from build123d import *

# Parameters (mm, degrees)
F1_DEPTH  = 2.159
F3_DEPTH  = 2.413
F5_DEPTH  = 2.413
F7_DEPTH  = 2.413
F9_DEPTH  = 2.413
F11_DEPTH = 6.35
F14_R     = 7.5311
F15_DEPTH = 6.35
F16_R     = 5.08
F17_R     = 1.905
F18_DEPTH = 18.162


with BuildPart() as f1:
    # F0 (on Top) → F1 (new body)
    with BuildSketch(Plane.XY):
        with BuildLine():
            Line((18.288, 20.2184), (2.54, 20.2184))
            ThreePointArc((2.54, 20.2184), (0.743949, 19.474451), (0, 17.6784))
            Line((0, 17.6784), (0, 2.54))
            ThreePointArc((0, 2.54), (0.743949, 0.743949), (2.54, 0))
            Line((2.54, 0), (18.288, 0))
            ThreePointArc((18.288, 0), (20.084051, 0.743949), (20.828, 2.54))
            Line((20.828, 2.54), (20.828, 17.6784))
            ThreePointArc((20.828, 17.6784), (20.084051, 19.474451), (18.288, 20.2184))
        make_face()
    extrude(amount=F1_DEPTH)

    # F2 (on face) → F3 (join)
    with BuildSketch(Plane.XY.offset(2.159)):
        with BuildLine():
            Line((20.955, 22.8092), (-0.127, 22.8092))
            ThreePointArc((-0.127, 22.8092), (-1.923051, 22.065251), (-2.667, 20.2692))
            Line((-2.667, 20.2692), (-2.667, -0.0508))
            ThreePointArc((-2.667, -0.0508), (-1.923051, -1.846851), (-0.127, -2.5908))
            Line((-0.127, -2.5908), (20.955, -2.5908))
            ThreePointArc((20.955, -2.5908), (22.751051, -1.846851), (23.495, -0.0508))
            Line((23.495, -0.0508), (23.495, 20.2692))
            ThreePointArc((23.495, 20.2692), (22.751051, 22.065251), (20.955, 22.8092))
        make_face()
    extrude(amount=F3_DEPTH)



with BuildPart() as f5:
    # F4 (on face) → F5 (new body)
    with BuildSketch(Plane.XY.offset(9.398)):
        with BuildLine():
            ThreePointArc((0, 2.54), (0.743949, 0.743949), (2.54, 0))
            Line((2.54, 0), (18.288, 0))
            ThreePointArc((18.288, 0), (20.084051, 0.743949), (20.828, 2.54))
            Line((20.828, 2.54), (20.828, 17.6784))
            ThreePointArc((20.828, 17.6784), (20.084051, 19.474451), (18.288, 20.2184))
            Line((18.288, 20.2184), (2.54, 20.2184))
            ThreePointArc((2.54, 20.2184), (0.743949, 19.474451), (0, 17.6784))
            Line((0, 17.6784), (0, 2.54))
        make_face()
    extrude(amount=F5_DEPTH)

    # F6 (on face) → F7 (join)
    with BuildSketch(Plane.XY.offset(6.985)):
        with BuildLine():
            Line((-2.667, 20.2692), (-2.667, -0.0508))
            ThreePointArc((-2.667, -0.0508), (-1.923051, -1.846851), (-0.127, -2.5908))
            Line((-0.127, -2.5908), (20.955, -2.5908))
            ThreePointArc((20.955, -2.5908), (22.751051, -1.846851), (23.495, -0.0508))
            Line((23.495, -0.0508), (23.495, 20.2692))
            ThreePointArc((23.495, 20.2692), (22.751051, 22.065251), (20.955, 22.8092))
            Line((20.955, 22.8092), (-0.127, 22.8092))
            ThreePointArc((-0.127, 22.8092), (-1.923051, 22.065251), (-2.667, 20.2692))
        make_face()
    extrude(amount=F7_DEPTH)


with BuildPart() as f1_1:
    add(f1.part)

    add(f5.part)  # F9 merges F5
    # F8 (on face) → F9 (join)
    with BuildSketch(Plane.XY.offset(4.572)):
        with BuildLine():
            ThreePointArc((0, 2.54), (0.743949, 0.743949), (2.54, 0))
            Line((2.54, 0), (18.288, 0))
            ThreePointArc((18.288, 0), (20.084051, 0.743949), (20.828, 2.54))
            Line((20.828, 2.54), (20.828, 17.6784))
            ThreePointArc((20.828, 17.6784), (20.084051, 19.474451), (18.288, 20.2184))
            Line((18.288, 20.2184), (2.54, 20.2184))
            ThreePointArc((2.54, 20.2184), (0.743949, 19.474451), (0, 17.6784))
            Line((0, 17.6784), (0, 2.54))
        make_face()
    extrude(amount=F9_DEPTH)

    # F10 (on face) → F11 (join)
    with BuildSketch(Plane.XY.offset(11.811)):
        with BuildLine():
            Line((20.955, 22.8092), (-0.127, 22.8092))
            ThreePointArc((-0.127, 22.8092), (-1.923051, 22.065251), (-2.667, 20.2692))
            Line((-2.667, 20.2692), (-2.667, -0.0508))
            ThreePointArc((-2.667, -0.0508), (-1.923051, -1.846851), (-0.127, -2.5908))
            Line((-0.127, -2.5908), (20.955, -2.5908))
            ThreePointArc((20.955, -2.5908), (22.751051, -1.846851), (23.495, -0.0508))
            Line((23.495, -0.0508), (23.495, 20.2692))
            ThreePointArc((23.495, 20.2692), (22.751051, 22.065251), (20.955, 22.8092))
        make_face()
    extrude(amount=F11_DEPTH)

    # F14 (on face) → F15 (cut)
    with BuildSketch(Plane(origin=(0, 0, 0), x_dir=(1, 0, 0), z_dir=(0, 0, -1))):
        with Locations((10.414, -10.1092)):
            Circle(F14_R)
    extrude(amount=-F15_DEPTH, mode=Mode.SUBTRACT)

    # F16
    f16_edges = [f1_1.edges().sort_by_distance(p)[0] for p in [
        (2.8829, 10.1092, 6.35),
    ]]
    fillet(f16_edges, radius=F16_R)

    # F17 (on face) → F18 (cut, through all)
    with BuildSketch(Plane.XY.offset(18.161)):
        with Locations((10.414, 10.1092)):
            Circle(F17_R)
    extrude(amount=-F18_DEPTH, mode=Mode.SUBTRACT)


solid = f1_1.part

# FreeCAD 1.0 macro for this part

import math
import FreeCAD as App
import Part
import Sketcher
from FreeCAD import Vector
Q = App.Units.Quantity


def edges_at(feature, points):
    """Names of the edges that pass closest to the given points."""
    edges = feature.Shape.Edges
    near = lambda p: min(range(len(edges)), key=lambda i: edges[i].distToShape(Part.Vertex(*p))[0])
    return sorted({f"Edge{near(p) + 1}" for p in points})

doc = App.newDocument("Part")
params = doc.addObject("Spreadsheet::Sheet", "Params")
for row, (alias, value) in enumerate([
    ("sketch1_radius", "0.1 in"),
    ("sketch1_width", "0.62 in"),
    ("sketch1_height", "0.596 in"),
    ("pad1_length", "0.085 in"),
    ("sketch2_radius", "0.1 in"),
    ("sketch2_height", "0.8 in"),
    ("sketch2_width", "0.83 in"),
    ("pad2_length", "0.095 in"),
    ("sketch3_radius", "0.1 in"),
    ("sketch3_width", "0.62 in"),
    ("sketch3_height", "0.596 in"),
    ("pad3_length", "0.095 in"),
    ("sketch4_radius", "0.1 in"),
    ("sketch4_height", "0.8 in"),
    ("sketch4_width", "0.83 in"),
    ("pad4_length", "0.095 in"),
    ("sketch5_radius", "0.1 in"),
    ("sketch5_width", "0.62 in"),
    ("sketch5_height", "0.596 in"),
    ("pad5_length", "0.095 in"),
    ("sketch6_radius", "0.1 in"),
    ("sketch6_height", "0.8 in"),
    ("sketch6_width", "0.83 in"),
    ("pad6_length", "0.25 in"),
    ("sketch7_diameter", "0.593 in"),
    ("pocket1_length", "0.25 in"),
    ("fillet_radius", "0.2 in"),
    ("sketch8_diameter", "0.15 in"),
], start=1):
    params.set(f"A{row}", alias)
    params.set(f"B{row}", "=" + value)
    params.setAlias(f"B{row}", alias)

body = doc.addObject("PartDesign::Body", "Body")

sketch1 = body.newObject("Sketcher::SketchObject", "Sketch")
sketch1.AttachmentSupport = (doc.getObject("XY_Plane"), [""])
sketch1.MapMode = "FlatFace"
sketch1.addGeometry(Part.LineSegment(Vector(18.288, 20.2184, 0), Vector(2.54, 20.2184, 0)), False)
sketch1.addGeometry(Part.ArcOfCircle(Part.Circle(Vector(2.540001, 17.678399, 0), Vector(0, 0, 1), 2.540001), math.radians(90.000017), math.radians(179.999983)), False)
sketch1.addGeometry(Part.LineSegment(Vector(0, 17.6784, 0), Vector(0, 2.54, 0)), False)
sketch1.addGeometry(Part.ArcOfCircle(Part.Circle(Vector(2.540001, 2.540001, 0), Vector(0, 0, 1), 2.540001), math.radians(-179.999983), math.radians(-90.000017)), False)
sketch1.addGeometry(Part.LineSegment(Vector(2.54, 0, 0), Vector(18.288, 0, 0)), False)
sketch1.addGeometry(Part.ArcOfCircle(Part.Circle(Vector(18.287999, 2.540001, 0), Vector(0, 0, 1), 2.540001), math.radians(-89.999983), math.radians(-0.000017)), False)
sketch1.addGeometry(Part.LineSegment(Vector(20.828, 2.54, 0), Vector(20.828, 17.6784, 0)), False)
sketch1.addGeometry(Part.ArcOfCircle(Part.Circle(Vector(18.287999, 17.678399, 0), Vector(0, 0, 1), 2.540001), math.radians(0.000017), math.radians(89.999983)), False)
sketch1.addConstraint(Sketcher.Constraint("Tangent", 0, 2, 1, 1))
sketch1.addConstraint(Sketcher.Constraint("Tangent", 1, 2, 2, 1))
sketch1.addConstraint(Sketcher.Constraint("Tangent", 2, 2, 3, 1))
sketch1.addConstraint(Sketcher.Constraint("Tangent", 3, 2, 4, 1))
sketch1.addConstraint(Sketcher.Constraint("Tangent", 4, 2, 5, 1))
sketch1.addConstraint(Sketcher.Constraint("Tangent", 5, 2, 6, 1))
sketch1.addConstraint(Sketcher.Constraint("Tangent", 6, 2, 7, 1))
sketch1.addConstraint(Sketcher.Constraint("Tangent", 7, 2, 0, 1))
sketch1.addConstraint(Sketcher.Constraint("Horizontal", 0))
sketch1.addConstraint(Sketcher.Constraint("Vertical", 2))
sketch1.addConstraint(Sketcher.Constraint("Horizontal", 4))
sketch1.addConstraint(Sketcher.Constraint("Vertical", 6))
sketch1.addConstraint(Sketcher.Constraint("Equal", 1, 3))
sketch1.addConstraint(Sketcher.Constraint("Equal", 3, 5))
sketch1.addConstraint(Sketcher.Constraint("Equal", 5, 7))
sketch1.addConstraint(Sketcher.Constraint("PointOnObject", 1, 2, -2))
sketch1.addConstraint(Sketcher.Constraint("PointOnObject", 3, 2, -1))
sketch1.addConstraint(Sketcher.Constraint("Radius", 1, Q("0.1 in")))
sketch1.addConstraint(Sketcher.Constraint("DistanceX", 0, 2, 0, 1, Q("0.62 in")))
sketch1.addConstraint(Sketcher.Constraint("DistanceY", 2, 2, 2, 1, Q("0.596 in")))
sketch1.setExpression("Constraints[17]", "Params.sketch1_radius")
sketch1.setExpression("Constraints[18]", "Params.sketch1_width")
sketch1.setExpression("Constraints[19]", "Params.sketch1_height")
pad1 = body.newObject("PartDesign::Pad", "Pad")
pad1.Profile = sketch1
pad1.setExpression("Length", "Params.pad1_length")

sketch2 = body.newObject("Sketcher::SketchObject", "Sketch001")
sketch2.AttachmentSupport = (doc.getObject("XY_Plane"), [""])
sketch2.MapMode = "FlatFace"
sketch2.AttachmentOffset = App.Placement(Vector(0, 0, 0.085 * 25.4), App.Rotation())
sketch2.addGeometry(Part.LineSegment(Vector(20.955, 22.8092, 0), Vector(-0.127, 22.8092, 0)), False)
sketch2.addGeometry(Part.ArcOfCircle(Part.Circle(Vector(-0.126999, 20.269199, 0), Vector(0, 0, 1), 2.540001), math.radians(90.000017), math.radians(179.999983)), False)
sketch2.addGeometry(Part.LineSegment(Vector(-2.667, 20.2692, 0), Vector(-2.667, -0.0508, 0)), False)
sketch2.addGeometry(Part.ArcOfCircle(Part.Circle(Vector(-0.126999, -0.050799, 0), Vector(0, 0, 1), 2.540001), math.radians(-179.999983), math.radians(-90.000017)), False)
sketch2.addGeometry(Part.LineSegment(Vector(-0.127, -2.5908, 0), Vector(20.955, -2.5908, 0)), False)
sketch2.addGeometry(Part.ArcOfCircle(Part.Circle(Vector(20.954999, -0.050799, 0), Vector(0, 0, 1), 2.540001), math.radians(-89.999983), math.radians(-0.000017)), False)
sketch2.addGeometry(Part.LineSegment(Vector(23.495, -0.0508, 0), Vector(23.495, 20.2692, 0)), False)
sketch2.addGeometry(Part.ArcOfCircle(Part.Circle(Vector(20.954999, 20.269199, 0), Vector(0, 0, 1), 2.540001), math.radians(0.000017), math.radians(89.999983)), False)
sketch2.addConstraint(Sketcher.Constraint("Tangent", 0, 2, 1, 1))
sketch2.addConstraint(Sketcher.Constraint("Tangent", 1, 2, 2, 1))
sketch2.addConstraint(Sketcher.Constraint("Tangent", 2, 2, 3, 1))
sketch2.addConstraint(Sketcher.Constraint("Tangent", 3, 2, 4, 1))
sketch2.addConstraint(Sketcher.Constraint("Tangent", 4, 2, 5, 1))
sketch2.addConstraint(Sketcher.Constraint("Tangent", 5, 2, 6, 1))
sketch2.addConstraint(Sketcher.Constraint("Tangent", 6, 2, 7, 1))
sketch2.addConstraint(Sketcher.Constraint("Tangent", 7, 2, 0, 1))
sketch2.addConstraint(Sketcher.Constraint("Horizontal", 0))
sketch2.addConstraint(Sketcher.Constraint("Vertical", 2))
sketch2.addConstraint(Sketcher.Constraint("Horizontal", 4))
sketch2.addConstraint(Sketcher.Constraint("Vertical", 6))
sketch2.addConstraint(Sketcher.Constraint("Equal", 1, 3))
sketch2.addConstraint(Sketcher.Constraint("Equal", 3, 5))
sketch2.addConstraint(Sketcher.Constraint("Equal", 5, 7))
sketch2.addConstraint(Sketcher.Constraint("Radius", 1, Q("0.1 in")))
sketch2.addConstraint(Sketcher.Constraint("DistanceY", 2, 2, 2, 1, Q("0.8 in")))
sketch2.addConstraint(Sketcher.Constraint("DistanceX", 0, 2, 0, 1, Q("0.83 in")))
sketch2.addConstraint(Sketcher.Constraint("DistanceX", 1, 3, -1, 1, Q("0.005 in")))
sketch2.addConstraint(Sketcher.Constraint("DistanceY", -1, 1, 1, 3, Q("0.798 in")))
sketch2.setExpression("Constraints[15]", "Params.sketch2_radius")
sketch2.setExpression("Constraints[16]", "Params.sketch2_height")
sketch2.setExpression("Constraints[17]", "Params.sketch2_width")
pad2 = body.newObject("PartDesign::Pad", "Pad001")
pad2.Profile = sketch2
pad2.setExpression("Length", "Params.pad2_length")
body2 = doc.addObject("PartDesign::Body", "Body001")

sketch3 = body2.newObject("Sketcher::SketchObject", "Sketch002")
sketch3.AttachmentSupport = (doc.getObject("XY_Plane001"), [""])
sketch3.MapMode = "FlatFace"
sketch3.AttachmentOffset = App.Placement(Vector(0, 0, 0.37 * 25.4), App.Rotation())
sketch3.addGeometry(Part.ArcOfCircle(Part.Circle(Vector(2.540001, 2.540001, 0), Vector(0, 0, 1), 2.540001), math.radians(-179.999983), math.radians(-90.000017)), False)
sketch3.addGeometry(Part.LineSegment(Vector(2.54, 0, 0), Vector(18.288, 0, 0)), False)
sketch3.addGeometry(Part.ArcOfCircle(Part.Circle(Vector(18.287999, 2.540001, 0), Vector(0, 0, 1), 2.540001), math.radians(-89.999983), math.radians(-0.000017)), False)
sketch3.addGeometry(Part.LineSegment(Vector(20.828, 2.54, 0), Vector(20.828, 17.6784, 0)), False)
sketch3.addGeometry(Part.ArcOfCircle(Part.Circle(Vector(18.287999, 17.678399, 0), Vector(0, 0, 1), 2.540001), math.radians(0.000017), math.radians(89.999983)), False)
sketch3.addGeometry(Part.LineSegment(Vector(18.288, 20.2184, 0), Vector(2.54, 20.2184, 0)), False)
sketch3.addGeometry(Part.ArcOfCircle(Part.Circle(Vector(2.540001, 17.678399, 0), Vector(0, 0, 1), 2.540001), math.radians(90.000017), math.radians(179.999983)), False)
sketch3.addGeometry(Part.LineSegment(Vector(0, 17.6784, 0), Vector(0, 2.54, 0)), False)
sketch3.addConstraint(Sketcher.Constraint("Tangent", 0, 2, 1, 1))
sketch3.addConstraint(Sketcher.Constraint("Tangent", 1, 2, 2, 1))
sketch3.addConstraint(Sketcher.Constraint("Tangent", 2, 2, 3, 1))
sketch3.addConstraint(Sketcher.Constraint("Tangent", 3, 2, 4, 1))
sketch3.addConstraint(Sketcher.Constraint("Tangent", 4, 2, 5, 1))
sketch3.addConstraint(Sketcher.Constraint("Tangent", 5, 2, 6, 1))
sketch3.addConstraint(Sketcher.Constraint("Tangent", 6, 2, 7, 1))
sketch3.addConstraint(Sketcher.Constraint("Tangent", 7, 2, 0, 1))
sketch3.addConstraint(Sketcher.Constraint("Horizontal", 1))
sketch3.addConstraint(Sketcher.Constraint("Vertical", 3))
sketch3.addConstraint(Sketcher.Constraint("Horizontal", 5))
sketch3.addConstraint(Sketcher.Constraint("Vertical", 7))
sketch3.addConstraint(Sketcher.Constraint("Equal", 0, 2))
sketch3.addConstraint(Sketcher.Constraint("Equal", 2, 4))
sketch3.addConstraint(Sketcher.Constraint("Equal", 4, 6))
sketch3.addConstraint(Sketcher.Constraint("PointOnObject", 0, 2, -1))
sketch3.addConstraint(Sketcher.Constraint("PointOnObject", 6, 2, -2))
sketch3.addConstraint(Sketcher.Constraint("Radius", 0, Q("0.1 in")))
sketch3.addConstraint(Sketcher.Constraint("DistanceX", 1, 1, 1, 2, Q("0.62 in")))
sketch3.addConstraint(Sketcher.Constraint("DistanceY", 3, 1, 3, 2, Q("0.596 in")))
sketch3.setExpression("Constraints[17]", "Params.sketch3_radius")
sketch3.setExpression("Constraints[18]", "Params.sketch3_width")
sketch3.setExpression("Constraints[19]", "Params.sketch3_height")
pad3 = body2.newObject("PartDesign::Pad", "Pad002")
pad3.Profile = sketch3
pad3.setExpression("Length", "Params.pad3_length")

sketch4 = body2.newObject("Sketcher::SketchObject", "Sketch003")
sketch4.AttachmentSupport = (doc.getObject("XY_Plane001"), [""])
sketch4.MapMode = "FlatFace"
sketch4.AttachmentOffset = App.Placement(Vector(0, 0, 0.275 * 25.4), App.Rotation())
sketch4.addGeometry(Part.LineSegment(Vector(-2.667, 20.2692, 0), Vector(-2.667, -0.0508, 0)), False)
sketch4.addGeometry(Part.ArcOfCircle(Part.Circle(Vector(-0.126999, -0.050799, 0), Vector(0, 0, 1), 2.540001), math.radians(-179.999983), math.radians(-90.000017)), False)
sketch4.addGeometry(Part.LineSegment(Vector(-0.127, -2.5908, 0), Vector(20.955, -2.5908, 0)), False)
sketch4.addGeometry(Part.ArcOfCircle(Part.Circle(Vector(20.954999, -0.050799, 0), Vector(0, 0, 1), 2.540001), math.radians(-89.999983), math.radians(-0.000017)), False)
sketch4.addGeometry(Part.LineSegment(Vector(23.495, -0.0508, 0), Vector(23.495, 20.2692, 0)), False)
sketch4.addGeometry(Part.ArcOfCircle(Part.Circle(Vector(20.954999, 20.269199, 0), Vector(0, 0, 1), 2.540001), math.radians(0.000017), math.radians(89.999983)), False)
sketch4.addGeometry(Part.LineSegment(Vector(20.955, 22.8092, 0), Vector(-0.127, 22.8092, 0)), False)
sketch4.addGeometry(Part.ArcOfCircle(Part.Circle(Vector(-0.126999, 20.269199, 0), Vector(0, 0, 1), 2.540001), math.radians(90.000017), math.radians(179.999983)), False)
sketch4.addConstraint(Sketcher.Constraint("Tangent", 0, 2, 1, 1))
sketch4.addConstraint(Sketcher.Constraint("Tangent", 1, 2, 2, 1))
sketch4.addConstraint(Sketcher.Constraint("Tangent", 2, 2, 3, 1))
sketch4.addConstraint(Sketcher.Constraint("Tangent", 3, 2, 4, 1))
sketch4.addConstraint(Sketcher.Constraint("Tangent", 4, 2, 5, 1))
sketch4.addConstraint(Sketcher.Constraint("Tangent", 5, 2, 6, 1))
sketch4.addConstraint(Sketcher.Constraint("Tangent", 6, 2, 7, 1))
sketch4.addConstraint(Sketcher.Constraint("Tangent", 7, 2, 0, 1))
sketch4.addConstraint(Sketcher.Constraint("Vertical", 0))
sketch4.addConstraint(Sketcher.Constraint("Horizontal", 2))
sketch4.addConstraint(Sketcher.Constraint("Vertical", 4))
sketch4.addConstraint(Sketcher.Constraint("Horizontal", 6))
sketch4.addConstraint(Sketcher.Constraint("Equal", 1, 3))
sketch4.addConstraint(Sketcher.Constraint("Equal", 3, 5))
sketch4.addConstraint(Sketcher.Constraint("Equal", 5, 7))
sketch4.addConstraint(Sketcher.Constraint("Radius", 1, Q("0.1 in")))
sketch4.addConstraint(Sketcher.Constraint("DistanceY", 0, 2, 0, 1, Q("0.8 in")))
sketch4.addConstraint(Sketcher.Constraint("DistanceX", 2, 1, 2, 2, Q("0.83 in")))
sketch4.addConstraint(Sketcher.Constraint("DistanceX", 1, 3, -1, 1, Q("0.005 in")))
sketch4.addConstraint(Sketcher.Constraint("DistanceY", 1, 3, -1, 1, Q("0.002 in")))
sketch4.setExpression("Constraints[15]", "Params.sketch4_radius")
sketch4.setExpression("Constraints[16]", "Params.sketch4_height")
sketch4.setExpression("Constraints[17]", "Params.sketch4_width")
pad4 = body2.newObject("PartDesign::Pad", "Pad003")
pad4.Profile = sketch4
pad4.setExpression("Length", "Params.pad4_length")
body.AllowCompound = True
doc.recompute()

boolean = body.newObject("PartDesign::Boolean", "Boolean")
boolean.Type = "Fuse"
boolean.addObjects([body2])

sketch5 = body.newObject("Sketcher::SketchObject", "Sketch004")
sketch5.AttachmentSupport = (doc.getObject("XY_Plane"), [""])
sketch5.MapMode = "FlatFace"
sketch5.AttachmentOffset = App.Placement(Vector(0, 0, 0.18 * 25.4), App.Rotation())
sketch5.addGeometry(Part.ArcOfCircle(Part.Circle(Vector(2.540001, 2.540001, 0), Vector(0, 0, 1), 2.540001), math.radians(-179.999983), math.radians(-90.000017)), False)
sketch5.addGeometry(Part.LineSegment(Vector(2.54, 0, 0), Vector(18.288, 0, 0)), False)
sketch5.addGeometry(Part.ArcOfCircle(Part.Circle(Vector(18.287999, 2.540001, 0), Vector(0, 0, 1), 2.540001), math.radians(-89.999983), math.radians(-0.000017)), False)
sketch5.addGeometry(Part.LineSegment(Vector(20.828, 2.54, 0), Vector(20.828, 17.6784, 0)), False)
sketch5.addGeometry(Part.ArcOfCircle(Part.Circle(Vector(18.287999, 17.678399, 0), Vector(0, 0, 1), 2.540001), math.radians(0.000017), math.radians(89.999983)), False)
sketch5.addGeometry(Part.LineSegment(Vector(18.288, 20.2184, 0), Vector(2.54, 20.2184, 0)), False)
sketch5.addGeometry(Part.ArcOfCircle(Part.Circle(Vector(2.540001, 17.678399, 0), Vector(0, 0, 1), 2.540001), math.radians(90.000017), math.radians(179.999983)), False)
sketch5.addGeometry(Part.LineSegment(Vector(0, 17.6784, 0), Vector(0, 2.54, 0)), False)
sketch5.addConstraint(Sketcher.Constraint("Tangent", 0, 2, 1, 1))
sketch5.addConstraint(Sketcher.Constraint("Tangent", 1, 2, 2, 1))
sketch5.addConstraint(Sketcher.Constraint("Tangent", 2, 2, 3, 1))
sketch5.addConstraint(Sketcher.Constraint("Tangent", 3, 2, 4, 1))
sketch5.addConstraint(Sketcher.Constraint("Tangent", 4, 2, 5, 1))
sketch5.addConstraint(Sketcher.Constraint("Tangent", 5, 2, 6, 1))
sketch5.addConstraint(Sketcher.Constraint("Tangent", 6, 2, 7, 1))
sketch5.addConstraint(Sketcher.Constraint("Tangent", 7, 2, 0, 1))
sketch5.addConstraint(Sketcher.Constraint("Horizontal", 1))
sketch5.addConstraint(Sketcher.Constraint("Vertical", 3))
sketch5.addConstraint(Sketcher.Constraint("Horizontal", 5))
sketch5.addConstraint(Sketcher.Constraint("Vertical", 7))
sketch5.addConstraint(Sketcher.Constraint("Equal", 0, 2))
sketch5.addConstraint(Sketcher.Constraint("Equal", 2, 4))
sketch5.addConstraint(Sketcher.Constraint("Equal", 4, 6))
sketch5.addConstraint(Sketcher.Constraint("PointOnObject", 0, 2, -1))
sketch5.addConstraint(Sketcher.Constraint("PointOnObject", 6, 2, -2))
sketch5.addConstraint(Sketcher.Constraint("Radius", 0, Q("0.1 in")))
sketch5.addConstraint(Sketcher.Constraint("DistanceX", 1, 1, 1, 2, Q("0.62 in")))
sketch5.addConstraint(Sketcher.Constraint("DistanceY", 3, 1, 3, 2, Q("0.596 in")))
sketch5.setExpression("Constraints[17]", "Params.sketch5_radius")
sketch5.setExpression("Constraints[18]", "Params.sketch5_width")
sketch5.setExpression("Constraints[19]", "Params.sketch5_height")
pad5 = body.newObject("PartDesign::Pad", "Pad004")
pad5.Profile = sketch5
pad5.setExpression("Length", "Params.pad5_length")

sketch6 = body.newObject("Sketcher::SketchObject", "Sketch005")
sketch6.AttachmentSupport = (doc.getObject("XY_Plane"), [""])
sketch6.MapMode = "FlatFace"
sketch6.AttachmentOffset = App.Placement(Vector(0, 0, 0.465 * 25.4), App.Rotation())
sketch6.addGeometry(Part.LineSegment(Vector(20.955, 22.8092, 0), Vector(-0.127, 22.8092, 0)), False)
sketch6.addGeometry(Part.ArcOfCircle(Part.Circle(Vector(-0.126999, 20.269199, 0), Vector(0, 0, 1), 2.540001), math.radians(90.000017), math.radians(179.999983)), False)
sketch6.addGeometry(Part.LineSegment(Vector(-2.667, 20.2692, 0), Vector(-2.667, -0.0508, 0)), False)
sketch6.addGeometry(Part.ArcOfCircle(Part.Circle(Vector(-0.126999, -0.050799, 0), Vector(0, 0, 1), 2.540001), math.radians(-179.999983), math.radians(-90.000017)), False)
sketch6.addGeometry(Part.LineSegment(Vector(-0.127, -2.5908, 0), Vector(20.955, -2.5908, 0)), False)
sketch6.addGeometry(Part.ArcOfCircle(Part.Circle(Vector(20.954999, -0.050799, 0), Vector(0, 0, 1), 2.540001), math.radians(-89.999983), math.radians(-0.000017)), False)
sketch6.addGeometry(Part.LineSegment(Vector(23.495, -0.0508, 0), Vector(23.495, 20.2692, 0)), False)
sketch6.addGeometry(Part.ArcOfCircle(Part.Circle(Vector(20.954999, 20.269199, 0), Vector(0, 0, 1), 2.540001), math.radians(0.000017), math.radians(89.999983)), False)
sketch6.addConstraint(Sketcher.Constraint("Tangent", 0, 2, 1, 1))
sketch6.addConstraint(Sketcher.Constraint("Tangent", 1, 2, 2, 1))
sketch6.addConstraint(Sketcher.Constraint("Tangent", 2, 2, 3, 1))
sketch6.addConstraint(Sketcher.Constraint("Tangent", 3, 2, 4, 1))
sketch6.addConstraint(Sketcher.Constraint("Tangent", 4, 2, 5, 1))
sketch6.addConstraint(Sketcher.Constraint("Tangent", 5, 2, 6, 1))
sketch6.addConstraint(Sketcher.Constraint("Tangent", 6, 2, 7, 1))
sketch6.addConstraint(Sketcher.Constraint("Tangent", 7, 2, 0, 1))
sketch6.addConstraint(Sketcher.Constraint("Horizontal", 0))
sketch6.addConstraint(Sketcher.Constraint("Vertical", 2))
sketch6.addConstraint(Sketcher.Constraint("Horizontal", 4))
sketch6.addConstraint(Sketcher.Constraint("Vertical", 6))
sketch6.addConstraint(Sketcher.Constraint("Equal", 1, 3))
sketch6.addConstraint(Sketcher.Constraint("Equal", 3, 5))
sketch6.addConstraint(Sketcher.Constraint("Equal", 5, 7))
sketch6.addConstraint(Sketcher.Constraint("Radius", 1, Q("0.1 in")))
sketch6.addConstraint(Sketcher.Constraint("DistanceY", 2, 2, 2, 1, Q("0.8 in")))
sketch6.addConstraint(Sketcher.Constraint("DistanceX", 0, 2, 0, 1, Q("0.83 in")))
sketch6.addConstraint(Sketcher.Constraint("DistanceX", 1, 3, -1, 1, Q("0.005 in")))
sketch6.addConstraint(Sketcher.Constraint("DistanceY", -1, 1, 1, 3, Q("0.798 in")))
sketch6.setExpression("Constraints[15]", "Params.sketch6_radius")
sketch6.setExpression("Constraints[16]", "Params.sketch6_height")
sketch6.setExpression("Constraints[17]", "Params.sketch6_width")
pad6 = body.newObject("PartDesign::Pad", "Pad005")
pad6.Profile = sketch6
pad6.setExpression("Length", "Params.pad6_length")

sketch7 = body.newObject("Sketcher::SketchObject", "Sketch006")
sketch7.AttachmentSupport = (doc.getObject("XY_Plane"), [""])
sketch7.MapMode = "FlatFace"
sketch7.addGeometry(Part.Circle(Vector(10.414, 10.1092, 0), Vector(0, 0, 1), 7.5311), False)
sketch7.addConstraint(Sketcher.Constraint("Diameter", 0, Q("0.593 in")))
sketch7.addConstraint(Sketcher.Constraint("DistanceX", -1, 1, 0, 3, Q("0.41 in")))
sketch7.addConstraint(Sketcher.Constraint("DistanceY", -1, 1, 0, 3, Q("0.398 in")))
sketch7.setExpression("Constraints[0]", "Params.sketch7_diameter")
pocket1 = body.newObject("PartDesign::Pocket", "Pocket")
pocket1.Profile = sketch7
pocket1.setExpression("Length", "Params.pocket1_length")
pocket1.Reversed = True
doc.recompute()

fillet = body.newObject("PartDesign::Fillet", "Fillet")
fillet.Base = (pocket1, edges_at(pocket1, [(2.883, 10.109, 6.35)]))
fillet.setExpression("Radius", "Params.fillet_radius")

sketch8 = body.newObject("Sketcher::SketchObject", "Sketch007")
sketch8.AttachmentSupport = (doc.getObject("XY_Plane"), [""])
sketch8.MapMode = "FlatFace"
sketch8.AttachmentOffset = App.Placement(Vector(0, 0, 0.715 * 25.4), App.Rotation())
sketch8.addGeometry(Part.Circle(Vector(10.414, 10.1092, 0), Vector(0, 0, 1), 1.905), False)
sketch8.addConstraint(Sketcher.Constraint("Diameter", 0, Q("0.15 in")))
sketch8.addConstraint(Sketcher.Constraint("DistanceX", -1, 1, 0, 3, Q("0.41 in")))
sketch8.addConstraint(Sketcher.Constraint("DistanceY", -1, 1, 0, 3, Q("0.398 in")))
sketch8.setExpression("Constraints[0]", "Params.sketch8_diameter")
pocket2 = body.newObject("PartDesign::Pocket", "Pocket001")
pocket2.Profile = sketch8
pocket2.Type = "ThroughAll"

doc.recompute()
